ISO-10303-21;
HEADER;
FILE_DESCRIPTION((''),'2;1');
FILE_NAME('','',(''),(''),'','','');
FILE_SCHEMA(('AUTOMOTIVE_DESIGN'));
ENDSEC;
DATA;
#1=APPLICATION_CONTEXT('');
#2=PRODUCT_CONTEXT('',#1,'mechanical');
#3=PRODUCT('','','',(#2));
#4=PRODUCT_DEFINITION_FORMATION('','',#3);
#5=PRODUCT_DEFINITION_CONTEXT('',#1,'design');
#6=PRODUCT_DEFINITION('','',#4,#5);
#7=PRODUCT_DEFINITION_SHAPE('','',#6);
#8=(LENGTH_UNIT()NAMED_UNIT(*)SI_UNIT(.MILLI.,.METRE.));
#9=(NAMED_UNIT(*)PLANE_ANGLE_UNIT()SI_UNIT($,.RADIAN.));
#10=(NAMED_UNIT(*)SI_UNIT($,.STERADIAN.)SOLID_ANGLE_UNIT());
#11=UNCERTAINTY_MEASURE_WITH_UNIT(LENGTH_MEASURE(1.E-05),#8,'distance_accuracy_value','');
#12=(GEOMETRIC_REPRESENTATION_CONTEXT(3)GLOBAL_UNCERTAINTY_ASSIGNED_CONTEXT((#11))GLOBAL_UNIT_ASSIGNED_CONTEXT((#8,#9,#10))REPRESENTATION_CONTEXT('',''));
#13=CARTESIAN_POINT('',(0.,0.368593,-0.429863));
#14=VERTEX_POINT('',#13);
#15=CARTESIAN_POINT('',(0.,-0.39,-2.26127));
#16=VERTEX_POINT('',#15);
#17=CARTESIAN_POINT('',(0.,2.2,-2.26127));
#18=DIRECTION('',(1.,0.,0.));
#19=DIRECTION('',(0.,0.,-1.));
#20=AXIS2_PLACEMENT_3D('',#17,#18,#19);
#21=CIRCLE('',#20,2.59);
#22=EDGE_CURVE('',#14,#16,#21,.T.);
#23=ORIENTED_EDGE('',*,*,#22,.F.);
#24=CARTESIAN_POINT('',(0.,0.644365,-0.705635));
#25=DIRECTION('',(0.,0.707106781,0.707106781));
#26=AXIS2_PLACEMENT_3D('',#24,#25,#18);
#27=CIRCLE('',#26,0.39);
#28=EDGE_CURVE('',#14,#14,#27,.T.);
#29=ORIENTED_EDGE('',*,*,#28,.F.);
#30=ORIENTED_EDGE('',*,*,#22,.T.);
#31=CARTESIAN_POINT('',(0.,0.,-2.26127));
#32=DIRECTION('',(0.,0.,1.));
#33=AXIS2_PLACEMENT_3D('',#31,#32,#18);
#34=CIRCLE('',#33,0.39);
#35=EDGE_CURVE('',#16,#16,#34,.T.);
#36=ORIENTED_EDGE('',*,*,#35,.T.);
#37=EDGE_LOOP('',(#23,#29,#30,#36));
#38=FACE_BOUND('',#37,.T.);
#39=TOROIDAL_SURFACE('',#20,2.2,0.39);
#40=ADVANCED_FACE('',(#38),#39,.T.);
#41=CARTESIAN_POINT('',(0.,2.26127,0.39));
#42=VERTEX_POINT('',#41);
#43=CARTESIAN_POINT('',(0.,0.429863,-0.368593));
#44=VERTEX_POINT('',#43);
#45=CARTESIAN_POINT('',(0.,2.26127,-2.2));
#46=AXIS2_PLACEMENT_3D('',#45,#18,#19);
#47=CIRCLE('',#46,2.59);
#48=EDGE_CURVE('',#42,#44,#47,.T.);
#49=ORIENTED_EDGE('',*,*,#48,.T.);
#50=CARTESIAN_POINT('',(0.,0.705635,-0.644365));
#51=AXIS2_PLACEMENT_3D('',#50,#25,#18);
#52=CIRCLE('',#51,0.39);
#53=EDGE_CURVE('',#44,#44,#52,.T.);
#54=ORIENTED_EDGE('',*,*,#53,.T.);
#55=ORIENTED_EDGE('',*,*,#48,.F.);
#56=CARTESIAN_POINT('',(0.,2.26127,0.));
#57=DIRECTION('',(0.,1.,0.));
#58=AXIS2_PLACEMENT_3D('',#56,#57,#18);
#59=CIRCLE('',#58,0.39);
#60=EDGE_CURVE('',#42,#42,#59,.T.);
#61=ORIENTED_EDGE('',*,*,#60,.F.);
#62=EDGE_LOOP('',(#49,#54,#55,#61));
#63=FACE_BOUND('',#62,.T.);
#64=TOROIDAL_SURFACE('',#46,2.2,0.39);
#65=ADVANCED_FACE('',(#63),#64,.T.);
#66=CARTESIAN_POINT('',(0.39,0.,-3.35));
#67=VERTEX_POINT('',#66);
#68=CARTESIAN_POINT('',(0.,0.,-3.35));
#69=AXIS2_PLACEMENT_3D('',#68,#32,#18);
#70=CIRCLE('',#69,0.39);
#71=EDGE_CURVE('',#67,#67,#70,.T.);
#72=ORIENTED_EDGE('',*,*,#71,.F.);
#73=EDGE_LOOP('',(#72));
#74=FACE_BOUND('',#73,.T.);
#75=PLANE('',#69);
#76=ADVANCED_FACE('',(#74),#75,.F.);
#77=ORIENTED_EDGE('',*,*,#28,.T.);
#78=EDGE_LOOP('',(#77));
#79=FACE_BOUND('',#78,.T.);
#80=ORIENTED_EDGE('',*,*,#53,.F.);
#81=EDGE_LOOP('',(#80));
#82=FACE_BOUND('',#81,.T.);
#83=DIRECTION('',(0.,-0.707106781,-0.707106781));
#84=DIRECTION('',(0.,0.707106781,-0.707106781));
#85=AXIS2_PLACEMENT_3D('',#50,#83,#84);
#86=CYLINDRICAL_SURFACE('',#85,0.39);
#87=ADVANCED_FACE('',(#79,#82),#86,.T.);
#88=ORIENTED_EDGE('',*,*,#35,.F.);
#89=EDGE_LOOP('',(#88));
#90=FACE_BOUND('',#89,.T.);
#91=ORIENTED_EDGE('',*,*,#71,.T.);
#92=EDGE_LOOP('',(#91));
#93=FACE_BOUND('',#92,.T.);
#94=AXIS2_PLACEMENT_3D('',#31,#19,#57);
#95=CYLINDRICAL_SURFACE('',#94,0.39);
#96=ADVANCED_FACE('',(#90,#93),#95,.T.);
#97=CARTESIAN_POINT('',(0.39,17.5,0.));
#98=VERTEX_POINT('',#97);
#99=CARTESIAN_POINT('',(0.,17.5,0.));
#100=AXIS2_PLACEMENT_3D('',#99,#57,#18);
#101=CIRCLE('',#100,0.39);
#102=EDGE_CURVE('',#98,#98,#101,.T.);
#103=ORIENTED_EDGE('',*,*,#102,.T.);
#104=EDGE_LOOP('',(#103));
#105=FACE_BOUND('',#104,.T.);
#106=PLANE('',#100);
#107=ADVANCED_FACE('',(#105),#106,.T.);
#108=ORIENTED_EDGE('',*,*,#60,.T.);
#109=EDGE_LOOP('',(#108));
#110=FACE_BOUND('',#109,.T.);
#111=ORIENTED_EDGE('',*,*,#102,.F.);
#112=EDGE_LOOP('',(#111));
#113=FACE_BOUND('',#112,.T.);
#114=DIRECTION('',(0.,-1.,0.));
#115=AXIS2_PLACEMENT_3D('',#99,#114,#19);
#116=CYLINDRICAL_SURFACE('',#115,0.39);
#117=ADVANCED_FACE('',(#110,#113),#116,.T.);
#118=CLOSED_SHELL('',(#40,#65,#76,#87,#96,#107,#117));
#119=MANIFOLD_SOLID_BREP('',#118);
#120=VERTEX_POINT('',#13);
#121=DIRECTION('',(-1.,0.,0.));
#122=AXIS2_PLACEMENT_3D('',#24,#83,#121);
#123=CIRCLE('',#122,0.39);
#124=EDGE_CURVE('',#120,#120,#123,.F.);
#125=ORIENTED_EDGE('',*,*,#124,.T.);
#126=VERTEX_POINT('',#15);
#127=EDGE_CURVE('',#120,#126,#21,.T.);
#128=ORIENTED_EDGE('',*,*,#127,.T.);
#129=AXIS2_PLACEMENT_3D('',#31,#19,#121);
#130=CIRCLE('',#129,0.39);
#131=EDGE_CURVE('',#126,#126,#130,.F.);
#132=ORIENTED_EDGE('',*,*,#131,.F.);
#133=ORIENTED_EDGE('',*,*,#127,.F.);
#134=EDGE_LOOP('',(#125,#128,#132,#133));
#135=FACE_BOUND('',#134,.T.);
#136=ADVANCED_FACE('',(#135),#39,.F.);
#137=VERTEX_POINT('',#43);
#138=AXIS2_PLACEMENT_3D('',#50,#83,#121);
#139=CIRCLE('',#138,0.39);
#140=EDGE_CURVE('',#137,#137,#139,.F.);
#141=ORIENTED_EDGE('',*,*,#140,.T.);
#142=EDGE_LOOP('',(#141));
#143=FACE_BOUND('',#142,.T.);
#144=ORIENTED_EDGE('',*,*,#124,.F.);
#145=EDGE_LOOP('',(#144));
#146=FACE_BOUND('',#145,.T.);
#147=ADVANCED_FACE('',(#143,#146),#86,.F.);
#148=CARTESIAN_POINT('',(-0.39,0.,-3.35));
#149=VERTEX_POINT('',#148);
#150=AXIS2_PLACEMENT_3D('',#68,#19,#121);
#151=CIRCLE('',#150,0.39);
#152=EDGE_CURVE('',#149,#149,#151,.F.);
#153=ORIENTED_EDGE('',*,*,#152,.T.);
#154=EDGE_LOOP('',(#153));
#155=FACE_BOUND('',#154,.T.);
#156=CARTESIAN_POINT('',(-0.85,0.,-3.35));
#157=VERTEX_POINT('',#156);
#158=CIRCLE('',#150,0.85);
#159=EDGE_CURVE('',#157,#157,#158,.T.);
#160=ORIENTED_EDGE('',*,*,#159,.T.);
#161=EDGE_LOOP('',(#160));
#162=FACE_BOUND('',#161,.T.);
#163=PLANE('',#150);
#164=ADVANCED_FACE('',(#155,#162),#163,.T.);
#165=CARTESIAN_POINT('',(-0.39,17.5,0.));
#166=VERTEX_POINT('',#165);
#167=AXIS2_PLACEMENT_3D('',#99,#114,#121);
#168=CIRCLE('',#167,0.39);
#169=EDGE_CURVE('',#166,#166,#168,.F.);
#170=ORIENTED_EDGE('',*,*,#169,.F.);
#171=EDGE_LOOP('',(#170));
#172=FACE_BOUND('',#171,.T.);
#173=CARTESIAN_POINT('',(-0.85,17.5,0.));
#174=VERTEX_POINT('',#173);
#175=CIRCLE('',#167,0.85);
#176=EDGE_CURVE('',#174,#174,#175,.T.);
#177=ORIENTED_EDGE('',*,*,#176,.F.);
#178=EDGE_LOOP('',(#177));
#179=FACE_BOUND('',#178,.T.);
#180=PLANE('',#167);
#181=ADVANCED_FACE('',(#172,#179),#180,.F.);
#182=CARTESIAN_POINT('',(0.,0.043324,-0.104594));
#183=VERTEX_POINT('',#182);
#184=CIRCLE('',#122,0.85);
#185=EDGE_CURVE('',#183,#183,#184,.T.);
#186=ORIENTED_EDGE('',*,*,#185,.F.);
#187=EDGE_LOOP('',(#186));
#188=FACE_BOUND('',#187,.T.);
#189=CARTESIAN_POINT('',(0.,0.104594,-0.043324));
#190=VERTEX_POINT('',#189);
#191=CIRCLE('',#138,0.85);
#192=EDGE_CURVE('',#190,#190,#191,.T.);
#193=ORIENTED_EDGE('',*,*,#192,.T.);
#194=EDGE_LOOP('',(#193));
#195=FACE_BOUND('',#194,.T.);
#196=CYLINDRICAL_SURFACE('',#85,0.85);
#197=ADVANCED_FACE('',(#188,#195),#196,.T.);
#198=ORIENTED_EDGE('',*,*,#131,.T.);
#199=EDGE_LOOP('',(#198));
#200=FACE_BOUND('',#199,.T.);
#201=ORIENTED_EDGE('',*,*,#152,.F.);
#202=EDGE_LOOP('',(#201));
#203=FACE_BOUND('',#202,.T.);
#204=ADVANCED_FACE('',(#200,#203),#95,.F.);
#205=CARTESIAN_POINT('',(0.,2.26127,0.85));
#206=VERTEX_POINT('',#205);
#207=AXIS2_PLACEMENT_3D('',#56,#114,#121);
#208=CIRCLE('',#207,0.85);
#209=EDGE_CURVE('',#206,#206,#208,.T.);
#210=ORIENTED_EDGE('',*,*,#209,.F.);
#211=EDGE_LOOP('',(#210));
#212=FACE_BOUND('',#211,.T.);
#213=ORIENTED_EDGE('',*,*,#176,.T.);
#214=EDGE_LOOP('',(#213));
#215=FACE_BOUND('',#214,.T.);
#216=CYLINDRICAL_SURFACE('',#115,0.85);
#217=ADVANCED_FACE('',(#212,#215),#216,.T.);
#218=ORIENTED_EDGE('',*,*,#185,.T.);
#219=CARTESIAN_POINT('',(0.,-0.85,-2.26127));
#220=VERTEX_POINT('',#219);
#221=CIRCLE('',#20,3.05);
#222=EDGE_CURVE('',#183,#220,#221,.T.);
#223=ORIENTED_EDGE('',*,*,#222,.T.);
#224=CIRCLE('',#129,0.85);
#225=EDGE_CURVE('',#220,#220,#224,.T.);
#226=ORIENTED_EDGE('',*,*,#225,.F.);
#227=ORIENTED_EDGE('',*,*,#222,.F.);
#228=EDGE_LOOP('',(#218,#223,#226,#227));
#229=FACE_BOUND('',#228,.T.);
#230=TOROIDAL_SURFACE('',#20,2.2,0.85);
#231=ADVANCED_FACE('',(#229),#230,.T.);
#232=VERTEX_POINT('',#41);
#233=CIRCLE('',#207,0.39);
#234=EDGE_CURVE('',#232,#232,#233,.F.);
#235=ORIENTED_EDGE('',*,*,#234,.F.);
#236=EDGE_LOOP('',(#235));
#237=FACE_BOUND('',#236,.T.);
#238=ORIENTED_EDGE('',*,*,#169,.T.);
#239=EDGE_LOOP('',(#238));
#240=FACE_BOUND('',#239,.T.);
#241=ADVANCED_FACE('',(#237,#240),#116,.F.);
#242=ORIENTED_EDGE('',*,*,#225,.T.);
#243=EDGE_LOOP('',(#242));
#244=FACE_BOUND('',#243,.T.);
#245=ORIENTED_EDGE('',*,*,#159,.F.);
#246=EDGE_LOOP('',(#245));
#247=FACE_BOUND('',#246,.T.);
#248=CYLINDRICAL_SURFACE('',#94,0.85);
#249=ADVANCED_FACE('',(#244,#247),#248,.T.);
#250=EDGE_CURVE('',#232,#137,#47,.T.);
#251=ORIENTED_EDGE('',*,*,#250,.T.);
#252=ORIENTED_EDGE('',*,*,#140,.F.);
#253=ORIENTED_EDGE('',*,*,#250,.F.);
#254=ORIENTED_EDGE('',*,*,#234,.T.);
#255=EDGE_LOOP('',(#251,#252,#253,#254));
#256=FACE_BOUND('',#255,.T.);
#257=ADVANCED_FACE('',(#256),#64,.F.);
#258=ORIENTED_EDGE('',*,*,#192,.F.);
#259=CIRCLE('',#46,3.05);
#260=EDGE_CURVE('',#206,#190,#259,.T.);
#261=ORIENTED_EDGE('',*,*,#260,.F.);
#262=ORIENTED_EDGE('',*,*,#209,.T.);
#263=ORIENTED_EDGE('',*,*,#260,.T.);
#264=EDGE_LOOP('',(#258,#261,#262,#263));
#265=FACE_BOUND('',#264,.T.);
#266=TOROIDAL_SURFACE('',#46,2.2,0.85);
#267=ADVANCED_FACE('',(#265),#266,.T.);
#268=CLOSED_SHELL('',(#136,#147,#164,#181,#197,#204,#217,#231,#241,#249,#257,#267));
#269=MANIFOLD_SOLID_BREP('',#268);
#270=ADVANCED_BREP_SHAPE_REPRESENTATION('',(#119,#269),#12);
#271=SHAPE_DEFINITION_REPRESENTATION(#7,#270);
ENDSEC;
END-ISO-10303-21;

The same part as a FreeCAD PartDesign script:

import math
import FreeCAD as App
import Part
import Sketcher
Q = App.Units.Quantity

doc = App.newDocument("Part")
body = doc.addObject("PartDesign::Body", "Body")

# Sketch on XY plane
sketch1 = body.newObject("Sketcher::SketchObject", "Sketch")
sketch1.AttachmentSupport = (doc.getObject("XY_Plane"), [""])
sketch1.MapMode = "FlatFace"
sketch1.AttachmentOffset = App.Placement(App.Vector(0, 0, -3.35), App.Rotation())
sketch1.addGeometry(Part.Circle(App.Vector(0, 0, 0), App.Vector(0, 0, 1), 0.39), False)
sketch1.addConstraint([
    Sketcher.Constraint("Coincident", 0, 3, -1, 1),
    Sketcher.Constraint("Diameter", 0, Q("0.78 mm")),
])

# Sketch on YZ plane
sketch2 = body.newObject("Sketcher::SketchObject", "Sketch001")
sketch2.AttachmentSupport = (doc.getObject("YZ_Plane"), [""])
sketch2.MapMode = "FlatFace"
sketch2.addGeometry([
    Part.LineSegment(App.Vector(17.5, 0, 0), App.Vector(2.26, 0, 0)),  # 0
    Part.ArcOfCircle(Part.Circle(App.Vector(2.26, -2.2, 0), App.Vector(0, 0, 1), 2.2), math.radians(90), math.radians(135)),  # 1
    Part.LineSegment(App.Vector(0.71, -0.64, 0), App.Vector(0.64, -0.71, 0)),  # 2
    Part.ArcOfCircle(Part.Circle(App.Vector(2.2, -2.26, 0), App.Vector(0, 0, 1), 2.2), math.radians(135), math.radians(180)),  # 3
    Part.LineSegment(App.Vector(0, -2.26, 0), App.Vector(0, -3.35, 0)),  # 4
], False)
sketch2.addConstraint([
    Sketcher.Constraint("Tangent", 0, 2, 1, 1),
    Sketcher.Constraint("Tangent", 1, 2, 2, 1),
    Sketcher.Constraint("Tangent", 2, 2, 3, 1),
    Sketcher.Constraint("Tangent", 3, 2, 4, 1),
    Sketcher.Constraint("Horizontal", 0),
    Sketcher.Constraint("Vertical", 4),
    Sketcher.Constraint("Equal", 1, 3),
    Sketcher.Constraint("PointOnObject", 0, 1, -1),
    Sketcher.Constraint("PointOnObject", 3, 2, -2),
    Sketcher.Constraint("Radius", 1, Q("2.2 mm")),
    Sketcher.Constraint("Angle", 2, Q("-135 deg")),
    Sketcher.Constraint("DistanceX", -1, 1, 0, 1, Q("17.5 mm")),
    Sketcher.Constraint("DistanceY", 4, 2, -1, 1, Q("3.35 mm")),
    Sketcher.Constraint("DistanceX", 0, 2, 0, 1, Q("15.23873 mm")),
])
doc.recompute()

additivepipe = body.newObject("PartDesign::AdditivePipe", "AdditivePipe")
additivepipe.Profile = sketch1
additivepipe.Spine = (sketch2, ["Edge1", "Edge2", "Edge3", "Edge4", "Edge5"])
body2 = doc.addObject("PartDesign::Body", "Body001")

# Sketch on XY plane
sketch3 = body2.newObject("Sketcher::SketchObject", "Sketch002")
sketch3.AttachmentSupport = (doc.getObject("XY_Plane001"), [""])
sketch3.MapMode = "FlatFace"
sketch3.AttachmentOffset = App.Placement(App.Vector(0, 0, -3.35), App.Rotation())
sketch3.addGeometry([
    Part.Circle(App.Vector(0, 0, 0), App.Vector(0, 0, 1), 0.85),
    Part.Circle(App.Vector(0, 0, 0), App.Vector(0, 0, 1), 0.39),
], False)
sketch3.addConstraint([
    Sketcher.Constraint("Coincident", 0, 3, -1, 1),
    Sketcher.Constraint("Coincident", 1, 3, -1, 1),
    Sketcher.Constraint("Diameter", 0, Q("1.7 mm")),
    Sketcher.Constraint("Diameter", 1, Q("0.78 mm")),
])

# Sketch on YZ plane
sketch4 = body2.newObject("Sketcher::SketchObject", "Sketch003")
sketch4.AttachmentSupport = (doc.getObject("YZ_Plane001"), [""])
sketch4.MapMode = "FlatFace"
sketch4.addGeometry([
    Part.LineSegment(App.Vector(17.5, 0, 0), App.Vector(2.26, 0, 0)),  # 0
    Part.ArcOfCircle(Part.Circle(App.Vector(2.26, -2.2, 0), App.Vector(0, 0, 1), 2.2), math.radians(90), math.radians(135)),  # 1
    Part.LineSegment(App.Vector(0.71, -0.64, 0), App.Vector(0.64, -0.71, 0)),  # 2
    Part.ArcOfCircle(Part.Circle(App.Vector(2.2, -2.26, 0), App.Vector(0, 0, 1), 2.2), math.radians(135), math.radians(180)),  # 3
    Part.LineSegment(App.Vector(0, -2.26, 0), App.Vector(0, -3.35, 0)),  # 4
], False)
sketch4.addConstraint([
    Sketcher.Constraint("Tangent", 0, 2, 1, 1),
    Sketcher.Constraint("Tangent", 1, 2, 2, 1),
    Sketcher.Constraint("Tangent", 2, 2, 3, 1),
    Sketcher.Constraint("Tangent", 3, 2, 4, 1),
    Sketcher.Constraint("Horizontal", 0),
    Sketcher.Constraint("Vertical", 4),
    Sketcher.Constraint("Equal", 1, 3),
    Sketcher.Constraint("PointOnObject", 0, 1, -1),
    Sketcher.Constraint("PointOnObject", 3, 2, -2),
    Sketcher.Constraint("Radius", 1, Q("2.2 mm")),
    Sketcher.Constraint("Angle", 2, Q("-135 deg")),
    Sketcher.Constraint("DistanceX", -1, 1, 0, 1, Q("17.5 mm")),
    Sketcher.Constraint("DistanceY", 4, 2, -1, 1, Q("3.35 mm")),
    Sketcher.Constraint("DistanceX", 0, 2, 0, 1, Q("15.23873 mm")),
])
doc.recompute()

additivepipe2 = body2.newObject("PartDesign::AdditivePipe", "AdditivePipe001")
additivepipe2.Profile = sketch3
additivepipe2.Spine = (sketch4, ["Edge1", "Edge2", "Edge3", "Edge4", "Edge5"])

doc.recompute()
